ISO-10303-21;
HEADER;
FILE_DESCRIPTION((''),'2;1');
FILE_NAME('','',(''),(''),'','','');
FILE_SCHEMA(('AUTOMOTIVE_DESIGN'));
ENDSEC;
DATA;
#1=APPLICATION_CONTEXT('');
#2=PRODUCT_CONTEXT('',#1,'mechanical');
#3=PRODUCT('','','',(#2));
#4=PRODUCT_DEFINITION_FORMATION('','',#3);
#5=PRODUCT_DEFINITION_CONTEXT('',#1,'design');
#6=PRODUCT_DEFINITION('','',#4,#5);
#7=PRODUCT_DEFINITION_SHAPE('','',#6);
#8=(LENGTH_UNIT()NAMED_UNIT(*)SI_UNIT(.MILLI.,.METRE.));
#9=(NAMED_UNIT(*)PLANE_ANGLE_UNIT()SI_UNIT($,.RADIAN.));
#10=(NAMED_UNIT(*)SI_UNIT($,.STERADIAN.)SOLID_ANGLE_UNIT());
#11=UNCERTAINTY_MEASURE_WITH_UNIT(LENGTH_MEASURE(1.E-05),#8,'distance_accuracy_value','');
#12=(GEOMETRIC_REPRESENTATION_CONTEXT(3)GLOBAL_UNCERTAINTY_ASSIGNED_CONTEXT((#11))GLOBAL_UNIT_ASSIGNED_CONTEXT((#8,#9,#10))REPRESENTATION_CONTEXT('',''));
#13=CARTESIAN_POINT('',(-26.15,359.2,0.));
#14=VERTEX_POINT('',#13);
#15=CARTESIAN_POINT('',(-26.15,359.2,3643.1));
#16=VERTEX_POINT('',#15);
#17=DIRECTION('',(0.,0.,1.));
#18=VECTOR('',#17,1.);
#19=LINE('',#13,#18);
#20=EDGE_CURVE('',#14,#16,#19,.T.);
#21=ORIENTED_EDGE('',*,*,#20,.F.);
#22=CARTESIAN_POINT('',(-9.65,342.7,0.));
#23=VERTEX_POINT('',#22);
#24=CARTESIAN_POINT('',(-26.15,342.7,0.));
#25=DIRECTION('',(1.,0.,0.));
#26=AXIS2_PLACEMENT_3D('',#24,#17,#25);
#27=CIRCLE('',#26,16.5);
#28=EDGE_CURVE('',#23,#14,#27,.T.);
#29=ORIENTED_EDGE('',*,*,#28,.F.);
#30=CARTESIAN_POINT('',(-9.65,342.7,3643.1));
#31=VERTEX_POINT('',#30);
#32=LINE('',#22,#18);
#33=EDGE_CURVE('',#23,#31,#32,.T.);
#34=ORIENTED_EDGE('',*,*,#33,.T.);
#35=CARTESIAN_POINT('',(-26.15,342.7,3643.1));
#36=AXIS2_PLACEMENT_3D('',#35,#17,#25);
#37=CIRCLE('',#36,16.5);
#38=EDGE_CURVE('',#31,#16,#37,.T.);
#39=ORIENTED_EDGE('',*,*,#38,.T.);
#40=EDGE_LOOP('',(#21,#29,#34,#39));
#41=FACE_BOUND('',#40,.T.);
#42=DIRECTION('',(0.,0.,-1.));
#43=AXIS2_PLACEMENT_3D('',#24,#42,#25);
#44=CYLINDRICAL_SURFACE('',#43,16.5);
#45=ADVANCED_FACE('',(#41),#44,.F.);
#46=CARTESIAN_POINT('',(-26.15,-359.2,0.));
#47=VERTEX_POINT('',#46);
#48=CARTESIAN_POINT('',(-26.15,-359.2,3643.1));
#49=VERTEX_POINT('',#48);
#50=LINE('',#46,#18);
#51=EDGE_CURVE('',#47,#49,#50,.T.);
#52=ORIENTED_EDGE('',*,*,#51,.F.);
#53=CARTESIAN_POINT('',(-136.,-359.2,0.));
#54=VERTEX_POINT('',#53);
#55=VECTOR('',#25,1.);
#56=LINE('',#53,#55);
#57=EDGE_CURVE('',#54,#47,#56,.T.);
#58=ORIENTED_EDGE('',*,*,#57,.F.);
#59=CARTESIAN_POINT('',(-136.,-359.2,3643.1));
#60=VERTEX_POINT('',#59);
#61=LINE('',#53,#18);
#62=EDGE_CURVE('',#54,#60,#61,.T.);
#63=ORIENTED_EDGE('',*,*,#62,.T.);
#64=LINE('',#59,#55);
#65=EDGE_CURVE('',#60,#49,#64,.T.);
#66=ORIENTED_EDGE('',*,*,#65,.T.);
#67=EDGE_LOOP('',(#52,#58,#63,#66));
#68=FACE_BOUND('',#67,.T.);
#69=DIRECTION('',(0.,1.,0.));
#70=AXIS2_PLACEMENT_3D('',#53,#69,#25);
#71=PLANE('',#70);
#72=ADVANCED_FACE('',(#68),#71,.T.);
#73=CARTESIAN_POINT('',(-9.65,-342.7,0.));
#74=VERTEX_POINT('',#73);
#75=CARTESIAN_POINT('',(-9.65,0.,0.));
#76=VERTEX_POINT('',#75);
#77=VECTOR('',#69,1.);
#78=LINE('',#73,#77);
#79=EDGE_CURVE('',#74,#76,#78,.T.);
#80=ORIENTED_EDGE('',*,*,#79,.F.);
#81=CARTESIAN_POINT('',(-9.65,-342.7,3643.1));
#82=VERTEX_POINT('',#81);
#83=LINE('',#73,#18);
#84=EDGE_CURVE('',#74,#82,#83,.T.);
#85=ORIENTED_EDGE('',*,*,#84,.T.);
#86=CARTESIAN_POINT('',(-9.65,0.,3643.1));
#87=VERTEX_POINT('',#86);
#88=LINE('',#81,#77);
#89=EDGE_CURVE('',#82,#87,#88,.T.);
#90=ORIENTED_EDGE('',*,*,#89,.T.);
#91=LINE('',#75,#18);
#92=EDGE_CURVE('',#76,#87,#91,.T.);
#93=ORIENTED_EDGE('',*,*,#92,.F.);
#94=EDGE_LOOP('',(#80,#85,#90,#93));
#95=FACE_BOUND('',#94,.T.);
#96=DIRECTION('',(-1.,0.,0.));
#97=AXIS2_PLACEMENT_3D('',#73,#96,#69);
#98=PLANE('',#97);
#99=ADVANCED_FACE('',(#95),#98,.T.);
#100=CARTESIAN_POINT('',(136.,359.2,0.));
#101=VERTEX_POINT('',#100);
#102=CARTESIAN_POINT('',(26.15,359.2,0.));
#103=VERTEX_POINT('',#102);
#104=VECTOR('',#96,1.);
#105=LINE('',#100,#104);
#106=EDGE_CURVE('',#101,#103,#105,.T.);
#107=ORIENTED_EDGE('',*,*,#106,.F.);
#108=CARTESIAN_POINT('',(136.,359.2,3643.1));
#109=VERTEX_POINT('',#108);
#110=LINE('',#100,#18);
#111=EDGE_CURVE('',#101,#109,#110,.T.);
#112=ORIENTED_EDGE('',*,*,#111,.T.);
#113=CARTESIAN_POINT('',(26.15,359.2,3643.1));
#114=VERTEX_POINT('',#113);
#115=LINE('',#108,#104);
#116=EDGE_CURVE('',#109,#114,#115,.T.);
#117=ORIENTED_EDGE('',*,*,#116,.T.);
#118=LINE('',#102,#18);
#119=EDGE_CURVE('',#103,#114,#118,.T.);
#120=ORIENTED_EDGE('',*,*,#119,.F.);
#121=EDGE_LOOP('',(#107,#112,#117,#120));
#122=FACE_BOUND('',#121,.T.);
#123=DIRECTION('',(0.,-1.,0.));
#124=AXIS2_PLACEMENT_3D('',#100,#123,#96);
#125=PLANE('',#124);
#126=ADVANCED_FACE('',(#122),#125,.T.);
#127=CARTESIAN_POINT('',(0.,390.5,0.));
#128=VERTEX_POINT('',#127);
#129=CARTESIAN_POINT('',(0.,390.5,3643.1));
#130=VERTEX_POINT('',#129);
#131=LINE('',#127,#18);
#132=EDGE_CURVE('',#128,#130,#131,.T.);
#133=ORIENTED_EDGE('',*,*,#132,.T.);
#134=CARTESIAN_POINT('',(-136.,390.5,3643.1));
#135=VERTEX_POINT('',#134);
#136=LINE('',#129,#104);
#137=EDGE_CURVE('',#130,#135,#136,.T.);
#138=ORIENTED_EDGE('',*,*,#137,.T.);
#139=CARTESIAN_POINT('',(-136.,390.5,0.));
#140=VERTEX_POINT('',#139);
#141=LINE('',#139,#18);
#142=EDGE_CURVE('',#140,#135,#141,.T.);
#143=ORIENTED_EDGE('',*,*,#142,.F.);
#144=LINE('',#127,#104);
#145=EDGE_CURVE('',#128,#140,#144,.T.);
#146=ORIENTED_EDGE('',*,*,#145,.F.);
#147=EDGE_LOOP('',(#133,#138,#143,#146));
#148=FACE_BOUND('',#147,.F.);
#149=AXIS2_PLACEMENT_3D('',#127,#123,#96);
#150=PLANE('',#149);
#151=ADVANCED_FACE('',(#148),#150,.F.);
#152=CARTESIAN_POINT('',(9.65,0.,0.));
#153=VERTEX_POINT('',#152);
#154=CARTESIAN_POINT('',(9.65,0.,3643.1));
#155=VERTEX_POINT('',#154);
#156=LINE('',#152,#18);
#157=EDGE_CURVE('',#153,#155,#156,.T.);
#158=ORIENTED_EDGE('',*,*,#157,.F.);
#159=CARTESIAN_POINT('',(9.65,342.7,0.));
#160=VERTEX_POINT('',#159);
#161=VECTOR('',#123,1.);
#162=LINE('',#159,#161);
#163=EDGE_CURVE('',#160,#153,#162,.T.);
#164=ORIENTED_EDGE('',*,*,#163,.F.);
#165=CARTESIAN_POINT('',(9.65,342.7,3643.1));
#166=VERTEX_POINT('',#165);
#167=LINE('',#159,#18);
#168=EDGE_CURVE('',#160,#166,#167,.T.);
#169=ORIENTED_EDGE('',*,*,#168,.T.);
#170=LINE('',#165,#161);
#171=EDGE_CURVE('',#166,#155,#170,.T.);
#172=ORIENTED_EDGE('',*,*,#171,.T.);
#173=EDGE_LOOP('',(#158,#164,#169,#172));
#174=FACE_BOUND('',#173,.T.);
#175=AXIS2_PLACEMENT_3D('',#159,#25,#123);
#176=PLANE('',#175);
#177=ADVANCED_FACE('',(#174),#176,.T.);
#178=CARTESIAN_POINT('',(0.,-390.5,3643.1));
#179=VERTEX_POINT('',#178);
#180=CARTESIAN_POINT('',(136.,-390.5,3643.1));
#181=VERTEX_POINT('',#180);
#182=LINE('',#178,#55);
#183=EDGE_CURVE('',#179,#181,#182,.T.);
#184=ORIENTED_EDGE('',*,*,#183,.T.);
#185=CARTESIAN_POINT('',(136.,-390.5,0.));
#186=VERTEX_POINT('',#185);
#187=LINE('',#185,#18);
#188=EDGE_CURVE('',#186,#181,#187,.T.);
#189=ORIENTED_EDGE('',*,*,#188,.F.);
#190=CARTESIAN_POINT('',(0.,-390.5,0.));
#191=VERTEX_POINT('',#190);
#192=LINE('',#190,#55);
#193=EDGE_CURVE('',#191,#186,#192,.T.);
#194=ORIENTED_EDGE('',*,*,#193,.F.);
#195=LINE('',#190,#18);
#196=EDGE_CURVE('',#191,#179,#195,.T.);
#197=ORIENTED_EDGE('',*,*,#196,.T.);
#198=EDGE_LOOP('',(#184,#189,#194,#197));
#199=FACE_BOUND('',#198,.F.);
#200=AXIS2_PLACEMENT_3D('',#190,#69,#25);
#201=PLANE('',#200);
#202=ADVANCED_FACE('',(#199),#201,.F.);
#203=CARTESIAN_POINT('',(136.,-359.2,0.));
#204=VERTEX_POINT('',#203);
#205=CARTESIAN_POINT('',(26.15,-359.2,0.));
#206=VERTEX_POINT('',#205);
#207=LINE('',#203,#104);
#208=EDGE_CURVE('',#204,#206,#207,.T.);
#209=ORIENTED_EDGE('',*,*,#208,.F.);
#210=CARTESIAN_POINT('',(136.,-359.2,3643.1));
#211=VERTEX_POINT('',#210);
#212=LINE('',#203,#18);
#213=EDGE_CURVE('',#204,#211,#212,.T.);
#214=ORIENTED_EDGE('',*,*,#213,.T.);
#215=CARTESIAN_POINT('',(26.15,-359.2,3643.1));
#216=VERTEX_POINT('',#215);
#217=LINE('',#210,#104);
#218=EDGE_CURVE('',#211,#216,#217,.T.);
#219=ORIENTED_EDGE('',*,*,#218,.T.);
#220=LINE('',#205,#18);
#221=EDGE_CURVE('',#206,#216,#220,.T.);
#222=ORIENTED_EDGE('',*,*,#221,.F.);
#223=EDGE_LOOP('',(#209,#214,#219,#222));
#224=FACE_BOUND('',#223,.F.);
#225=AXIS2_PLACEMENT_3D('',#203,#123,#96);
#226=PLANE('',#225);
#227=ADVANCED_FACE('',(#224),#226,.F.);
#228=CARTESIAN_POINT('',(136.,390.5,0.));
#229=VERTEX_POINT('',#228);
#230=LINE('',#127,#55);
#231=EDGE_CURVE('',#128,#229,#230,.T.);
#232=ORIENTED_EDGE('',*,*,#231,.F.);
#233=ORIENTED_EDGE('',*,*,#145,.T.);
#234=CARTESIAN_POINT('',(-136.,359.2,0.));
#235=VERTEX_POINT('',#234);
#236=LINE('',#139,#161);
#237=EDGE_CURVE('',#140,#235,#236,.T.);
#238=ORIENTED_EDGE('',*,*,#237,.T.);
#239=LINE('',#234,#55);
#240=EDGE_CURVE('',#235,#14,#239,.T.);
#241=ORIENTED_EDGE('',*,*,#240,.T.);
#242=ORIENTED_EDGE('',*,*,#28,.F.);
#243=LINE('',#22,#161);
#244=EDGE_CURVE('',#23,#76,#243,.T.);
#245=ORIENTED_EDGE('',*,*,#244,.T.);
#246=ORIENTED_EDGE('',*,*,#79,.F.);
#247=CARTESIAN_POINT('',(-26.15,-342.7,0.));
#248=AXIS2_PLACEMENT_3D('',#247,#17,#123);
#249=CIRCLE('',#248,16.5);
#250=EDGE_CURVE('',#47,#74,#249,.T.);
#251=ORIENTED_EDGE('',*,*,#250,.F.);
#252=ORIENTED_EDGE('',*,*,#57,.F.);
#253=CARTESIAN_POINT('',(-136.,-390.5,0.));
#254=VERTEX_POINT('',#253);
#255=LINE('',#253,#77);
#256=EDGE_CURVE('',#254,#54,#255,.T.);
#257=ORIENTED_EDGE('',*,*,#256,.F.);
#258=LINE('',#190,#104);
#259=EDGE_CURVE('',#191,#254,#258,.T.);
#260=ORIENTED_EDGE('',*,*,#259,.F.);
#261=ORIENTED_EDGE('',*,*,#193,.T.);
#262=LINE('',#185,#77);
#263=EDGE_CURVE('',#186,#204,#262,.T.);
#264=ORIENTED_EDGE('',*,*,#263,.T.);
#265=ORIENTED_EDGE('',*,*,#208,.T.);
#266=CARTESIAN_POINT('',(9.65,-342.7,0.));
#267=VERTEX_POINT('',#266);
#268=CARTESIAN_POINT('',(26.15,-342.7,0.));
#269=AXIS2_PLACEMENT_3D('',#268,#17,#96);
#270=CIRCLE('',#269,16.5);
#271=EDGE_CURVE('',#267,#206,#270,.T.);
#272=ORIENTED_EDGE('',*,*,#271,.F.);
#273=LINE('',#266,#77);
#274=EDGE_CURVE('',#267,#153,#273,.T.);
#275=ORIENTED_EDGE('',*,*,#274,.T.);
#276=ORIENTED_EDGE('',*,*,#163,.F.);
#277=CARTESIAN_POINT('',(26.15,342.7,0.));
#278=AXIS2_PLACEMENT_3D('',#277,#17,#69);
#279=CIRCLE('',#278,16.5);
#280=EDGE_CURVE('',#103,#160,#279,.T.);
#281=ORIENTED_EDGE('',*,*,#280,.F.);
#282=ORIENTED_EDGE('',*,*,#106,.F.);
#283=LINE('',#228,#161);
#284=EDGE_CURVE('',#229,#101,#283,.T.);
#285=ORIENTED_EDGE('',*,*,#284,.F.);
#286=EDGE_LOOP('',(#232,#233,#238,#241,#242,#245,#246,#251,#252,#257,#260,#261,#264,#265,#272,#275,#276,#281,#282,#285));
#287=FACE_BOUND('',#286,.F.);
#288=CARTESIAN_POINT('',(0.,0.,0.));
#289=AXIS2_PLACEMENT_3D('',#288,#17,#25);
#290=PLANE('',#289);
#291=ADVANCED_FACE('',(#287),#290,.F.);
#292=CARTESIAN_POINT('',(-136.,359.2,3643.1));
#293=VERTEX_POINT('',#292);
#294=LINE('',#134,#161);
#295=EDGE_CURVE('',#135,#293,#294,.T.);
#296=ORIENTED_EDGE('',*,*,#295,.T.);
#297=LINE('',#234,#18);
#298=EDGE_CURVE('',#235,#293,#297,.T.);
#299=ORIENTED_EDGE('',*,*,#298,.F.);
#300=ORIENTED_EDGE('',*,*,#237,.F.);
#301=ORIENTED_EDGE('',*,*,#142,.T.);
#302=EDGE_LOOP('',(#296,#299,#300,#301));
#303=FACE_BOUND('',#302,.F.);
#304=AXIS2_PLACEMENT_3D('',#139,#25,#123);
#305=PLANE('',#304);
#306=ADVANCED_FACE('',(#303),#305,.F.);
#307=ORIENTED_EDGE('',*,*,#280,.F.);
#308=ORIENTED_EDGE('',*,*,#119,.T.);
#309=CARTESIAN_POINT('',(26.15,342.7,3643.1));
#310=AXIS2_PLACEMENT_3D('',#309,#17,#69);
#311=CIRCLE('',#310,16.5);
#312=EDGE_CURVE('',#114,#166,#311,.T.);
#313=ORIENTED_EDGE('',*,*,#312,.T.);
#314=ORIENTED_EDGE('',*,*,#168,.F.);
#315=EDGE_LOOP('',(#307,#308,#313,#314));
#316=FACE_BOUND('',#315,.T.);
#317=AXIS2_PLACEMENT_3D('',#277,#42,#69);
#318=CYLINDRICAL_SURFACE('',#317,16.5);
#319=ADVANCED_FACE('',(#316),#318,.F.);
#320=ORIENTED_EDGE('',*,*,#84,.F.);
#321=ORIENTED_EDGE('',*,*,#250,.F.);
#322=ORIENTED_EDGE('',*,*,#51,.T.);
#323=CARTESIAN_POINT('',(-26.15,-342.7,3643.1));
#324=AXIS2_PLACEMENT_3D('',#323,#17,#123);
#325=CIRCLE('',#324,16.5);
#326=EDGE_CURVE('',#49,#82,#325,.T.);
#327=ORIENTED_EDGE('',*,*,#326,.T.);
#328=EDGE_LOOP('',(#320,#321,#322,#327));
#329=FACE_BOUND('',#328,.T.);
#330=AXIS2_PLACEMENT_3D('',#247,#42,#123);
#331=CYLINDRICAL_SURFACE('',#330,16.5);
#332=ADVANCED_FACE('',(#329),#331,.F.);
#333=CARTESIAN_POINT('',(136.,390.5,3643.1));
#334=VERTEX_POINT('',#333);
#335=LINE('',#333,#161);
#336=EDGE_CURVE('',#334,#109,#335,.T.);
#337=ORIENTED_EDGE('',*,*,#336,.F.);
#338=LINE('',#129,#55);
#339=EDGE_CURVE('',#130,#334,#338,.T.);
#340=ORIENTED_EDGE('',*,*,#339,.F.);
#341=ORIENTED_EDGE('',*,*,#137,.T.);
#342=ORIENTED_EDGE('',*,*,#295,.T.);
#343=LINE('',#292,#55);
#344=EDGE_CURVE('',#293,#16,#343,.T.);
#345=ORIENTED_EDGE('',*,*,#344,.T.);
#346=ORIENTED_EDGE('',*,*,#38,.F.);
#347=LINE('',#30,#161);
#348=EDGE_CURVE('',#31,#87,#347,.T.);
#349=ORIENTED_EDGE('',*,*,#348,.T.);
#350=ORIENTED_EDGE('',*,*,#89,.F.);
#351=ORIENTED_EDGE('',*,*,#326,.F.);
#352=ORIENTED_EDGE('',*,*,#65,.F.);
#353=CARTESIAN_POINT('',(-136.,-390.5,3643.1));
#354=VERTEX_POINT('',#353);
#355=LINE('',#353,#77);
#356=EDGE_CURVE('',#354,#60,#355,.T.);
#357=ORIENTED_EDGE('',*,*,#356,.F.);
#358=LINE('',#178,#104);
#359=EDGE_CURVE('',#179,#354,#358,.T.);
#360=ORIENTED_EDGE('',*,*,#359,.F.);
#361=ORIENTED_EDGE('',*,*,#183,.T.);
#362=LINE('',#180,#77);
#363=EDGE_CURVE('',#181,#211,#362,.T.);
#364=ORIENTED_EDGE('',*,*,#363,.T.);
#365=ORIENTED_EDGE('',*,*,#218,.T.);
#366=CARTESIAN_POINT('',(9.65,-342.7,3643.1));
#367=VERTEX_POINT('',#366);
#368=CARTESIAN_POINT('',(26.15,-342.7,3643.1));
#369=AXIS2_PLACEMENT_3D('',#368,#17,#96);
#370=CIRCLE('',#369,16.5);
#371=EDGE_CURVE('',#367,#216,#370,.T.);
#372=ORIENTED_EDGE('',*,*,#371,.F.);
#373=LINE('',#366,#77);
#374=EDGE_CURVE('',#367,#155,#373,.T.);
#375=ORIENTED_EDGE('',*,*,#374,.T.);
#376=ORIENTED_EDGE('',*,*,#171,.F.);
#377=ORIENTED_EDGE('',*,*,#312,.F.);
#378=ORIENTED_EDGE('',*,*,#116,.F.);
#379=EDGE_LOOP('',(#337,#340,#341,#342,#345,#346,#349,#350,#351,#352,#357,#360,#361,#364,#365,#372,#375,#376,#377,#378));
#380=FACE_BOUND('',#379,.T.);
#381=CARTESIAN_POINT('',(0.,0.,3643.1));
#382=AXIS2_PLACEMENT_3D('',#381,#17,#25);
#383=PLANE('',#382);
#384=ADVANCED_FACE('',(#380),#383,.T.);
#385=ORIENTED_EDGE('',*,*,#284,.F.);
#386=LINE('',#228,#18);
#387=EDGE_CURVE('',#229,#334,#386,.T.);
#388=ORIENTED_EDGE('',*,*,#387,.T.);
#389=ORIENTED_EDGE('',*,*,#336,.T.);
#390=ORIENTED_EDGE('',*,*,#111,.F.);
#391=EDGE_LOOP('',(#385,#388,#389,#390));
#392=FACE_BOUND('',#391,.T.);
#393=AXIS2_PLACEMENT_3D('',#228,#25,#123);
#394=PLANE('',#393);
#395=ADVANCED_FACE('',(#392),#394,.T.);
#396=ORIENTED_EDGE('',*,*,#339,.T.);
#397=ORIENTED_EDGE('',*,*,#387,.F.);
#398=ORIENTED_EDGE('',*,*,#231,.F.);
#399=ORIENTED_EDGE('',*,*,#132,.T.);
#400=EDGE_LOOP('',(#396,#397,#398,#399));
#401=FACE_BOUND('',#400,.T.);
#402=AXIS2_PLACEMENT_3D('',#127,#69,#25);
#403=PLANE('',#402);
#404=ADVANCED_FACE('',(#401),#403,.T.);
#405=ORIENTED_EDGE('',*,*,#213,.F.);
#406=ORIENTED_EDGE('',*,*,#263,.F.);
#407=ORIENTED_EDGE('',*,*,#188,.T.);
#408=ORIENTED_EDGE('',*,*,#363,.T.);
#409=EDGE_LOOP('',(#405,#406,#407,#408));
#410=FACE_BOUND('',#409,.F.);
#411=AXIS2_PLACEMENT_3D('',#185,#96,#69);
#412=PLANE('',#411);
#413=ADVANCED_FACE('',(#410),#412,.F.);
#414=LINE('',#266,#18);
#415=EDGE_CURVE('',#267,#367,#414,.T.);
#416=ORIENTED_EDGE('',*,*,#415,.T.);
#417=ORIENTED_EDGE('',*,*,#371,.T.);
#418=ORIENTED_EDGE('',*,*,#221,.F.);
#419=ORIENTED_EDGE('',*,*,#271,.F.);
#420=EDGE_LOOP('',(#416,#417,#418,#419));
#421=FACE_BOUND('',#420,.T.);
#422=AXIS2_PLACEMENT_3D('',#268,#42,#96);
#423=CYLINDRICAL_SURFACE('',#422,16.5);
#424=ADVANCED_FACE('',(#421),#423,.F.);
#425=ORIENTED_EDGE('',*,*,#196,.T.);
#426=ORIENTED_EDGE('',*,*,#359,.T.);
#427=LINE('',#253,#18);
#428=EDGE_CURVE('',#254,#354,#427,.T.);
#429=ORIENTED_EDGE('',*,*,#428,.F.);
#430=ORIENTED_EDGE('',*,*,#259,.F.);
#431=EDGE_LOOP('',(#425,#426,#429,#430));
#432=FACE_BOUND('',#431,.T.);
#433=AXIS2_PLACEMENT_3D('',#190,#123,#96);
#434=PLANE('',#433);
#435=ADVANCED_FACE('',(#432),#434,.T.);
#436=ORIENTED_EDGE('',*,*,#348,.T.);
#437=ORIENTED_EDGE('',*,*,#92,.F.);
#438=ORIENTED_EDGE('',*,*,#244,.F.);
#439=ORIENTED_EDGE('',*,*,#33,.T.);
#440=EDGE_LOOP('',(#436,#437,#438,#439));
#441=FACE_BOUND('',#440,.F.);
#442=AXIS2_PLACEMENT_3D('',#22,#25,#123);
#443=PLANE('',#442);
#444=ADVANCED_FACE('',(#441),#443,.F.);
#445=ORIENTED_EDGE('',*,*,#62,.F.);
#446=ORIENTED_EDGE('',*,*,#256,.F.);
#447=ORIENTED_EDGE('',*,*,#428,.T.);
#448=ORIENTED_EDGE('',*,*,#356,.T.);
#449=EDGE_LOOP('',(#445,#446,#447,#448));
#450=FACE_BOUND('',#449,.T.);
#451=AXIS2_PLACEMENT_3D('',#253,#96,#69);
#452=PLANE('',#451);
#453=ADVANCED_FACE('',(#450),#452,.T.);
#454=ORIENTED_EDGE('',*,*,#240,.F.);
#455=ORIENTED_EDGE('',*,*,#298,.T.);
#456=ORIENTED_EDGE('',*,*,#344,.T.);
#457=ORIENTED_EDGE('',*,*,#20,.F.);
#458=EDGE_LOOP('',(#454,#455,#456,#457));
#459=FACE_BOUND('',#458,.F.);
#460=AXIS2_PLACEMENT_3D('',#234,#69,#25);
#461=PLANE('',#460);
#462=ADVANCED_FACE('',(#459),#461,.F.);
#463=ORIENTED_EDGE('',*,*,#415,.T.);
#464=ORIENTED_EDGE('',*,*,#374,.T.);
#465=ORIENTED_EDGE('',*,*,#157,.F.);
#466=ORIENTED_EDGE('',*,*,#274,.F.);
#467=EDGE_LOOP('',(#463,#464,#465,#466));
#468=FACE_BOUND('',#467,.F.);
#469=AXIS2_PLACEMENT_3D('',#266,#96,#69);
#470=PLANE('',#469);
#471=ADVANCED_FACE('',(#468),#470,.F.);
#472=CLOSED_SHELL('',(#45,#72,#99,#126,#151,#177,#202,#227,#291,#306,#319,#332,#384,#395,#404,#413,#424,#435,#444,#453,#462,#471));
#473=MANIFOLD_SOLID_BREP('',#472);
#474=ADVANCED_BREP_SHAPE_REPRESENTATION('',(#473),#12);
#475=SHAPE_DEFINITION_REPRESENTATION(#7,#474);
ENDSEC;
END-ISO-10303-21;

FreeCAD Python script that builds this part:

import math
import FreeCAD as App
import Part
import Sketcher

V = App.Vector

doc = App.newDocument("Part")
body = doc.addObject("PartDesign::Body", "Body")

sketch1 = body.newObject("Sketcher::SketchObject", "Sketch")
sketch1.AttachmentSupport = (doc.getObject("XY_Plane"), [""])
sketch1.MapMode = "FlatFace"
sketch1.addGeometry([
    Part.LineSegment(V(-136, -359, 0), V(-136, -390, 0)),
    Part.LineSegment(V(-136, -390, 0), V(136, -390, 0)),
    Part.LineSegment(V(136, -390, 0), V(136, -359, 0)),
    Part.LineSegment(V(136, -359, 0), V(26, -359, 0)),
    Part.ArcOfCircle(Part.Circle(V(26, -343, 0), V(0, 0, 1), 16), math.radians(180), math.radians(270)),
    Part.LineSegment(V(10, -343, 0), V(10, 343, 0)),
    Part.ArcOfCircle(Part.Circle(V(26, 343, 0), V(0, 0, 1), 16), math.radians(90), math.radians(180)),
    Part.LineSegment(V(26, 359, 0), V(136, 359, 0)),
    Part.LineSegment(V(136, 359, 0), V(136, 390, 0)),
    Part.LineSegment(V(136, 390, 0), V(-136, 390, 0)),
    Part.LineSegment(V(-136, 390, 0), V(-136, 359, 0)),
    Part.LineSegment(V(-136, 359, 0), V(-26, 359, 0)),
    Part.ArcOfCircle(Part.Circle(V(-26, 343, 0), V(0, 0, 1), 16), math.radians(0), math.radians(90)),
    Part.LineSegment(V(-10, 343, 0), V(-10, -343, 0)),
    Part.ArcOfCircle(Part.Circle(V(-26, -343, 0), V(0, 0, 1), 16), math.radians(-90), math.radians(0)),
    Part.LineSegment(V(-26, -359, 0), V(-136, -359, 0)),
], False)
sketch1.addConstraint([
    Sketcher.Constraint("Coincident", 0, 2, 1, 1),
    Sketcher.Constraint("Coincident", 1, 2, 2, 1),
    Sketcher.Constraint("Coincident", 2, 2, 3, 1),
    Sketcher.Constraint("Tangent", 3, 2, 4, 2),
    Sketcher.Constraint("Tangent", 4, 1, 5, 1),
    Sketcher.Constraint("Tangent", 5, 2, 6, 2),
    Sketcher.Constraint("Tangent", 6, 1, 7, 1),
    Sketcher.Constraint("Coincident", 7, 2, 8, 1),
    Sketcher.Constraint("Coincident", 8, 2, 9, 1),
    Sketcher.Constraint("Coincident", 9, 2, 10, 1),
    Sketcher.Constraint("Coincident", 10, 2, 11, 1),
    Sketcher.Constraint("Tangent", 11, 2, 12, 2),
    Sketcher.Constraint("Tangent", 12, 1, 13, 1),
    Sketcher.Constraint("Tangent", 13, 2, 14, 2),
    Sketcher.Constraint("Tangent", 14, 1, 15, 1),
    Sketcher.Constraint("Coincident", 15, 2, 0, 1),
    Sketcher.Constraint("Vertical", 0),
    Sketcher.Constraint("Horizontal", 1),
    Sketcher.Constraint("Vertical", 2),
    Sketcher.Constraint("Horizontal", 3),
    Sketcher.Constraint("Vertical", 5),
    Sketcher.Constraint("Horizontal", 7),
    Sketcher.Constraint("Vertical", 8),
    Sketcher.Constraint("Horizontal", 9),
    Sketcher.Constraint("Vertical", 10),
    Sketcher.Constraint("Horizontal", 11),
    Sketcher.Constraint("Vertical", 13),
    Sketcher.Constraint("Horizontal", 15),
    Sketcher.Constraint("Equal", 4, 6),
    Sketcher.Constraint("Equal", 6, 12),
    Sketcher.Constraint("Equal", 12, 14),
    Sketcher.Constraint("Symmetric", 4, 3, 12, 3, -1, 1),
    Sketcher.Constraint("Symmetric", 0, 2, 8, 2, -1, 1),
    Sketcher.Constraint("Symmetric", 7, 2, 10, 2, -2),
    Sketcher.Constraint("Symmetric", 2, 2, 15, 2, -2),
    Sketcher.Constraint("Radius", 4, 16.5),
    Sketcher.Constraint("DistanceY", 0, 2, 0, 1, 31.3),
    Sketcher.Constraint("DistanceX", 0, 2, -1, 1, 136.0),
    Sketcher.Constraint("DistanceY", 0, 2, -1, 1, 390.5),
    Sketcher.Constraint("DistanceX", -1, 1, 4, 1, 9.65),
])
pad1 = body.newObject("PartDesign::Pad", "Pad")
pad1.Profile = sketch1
pad1.Length = 3643.1

doc.recompute()
